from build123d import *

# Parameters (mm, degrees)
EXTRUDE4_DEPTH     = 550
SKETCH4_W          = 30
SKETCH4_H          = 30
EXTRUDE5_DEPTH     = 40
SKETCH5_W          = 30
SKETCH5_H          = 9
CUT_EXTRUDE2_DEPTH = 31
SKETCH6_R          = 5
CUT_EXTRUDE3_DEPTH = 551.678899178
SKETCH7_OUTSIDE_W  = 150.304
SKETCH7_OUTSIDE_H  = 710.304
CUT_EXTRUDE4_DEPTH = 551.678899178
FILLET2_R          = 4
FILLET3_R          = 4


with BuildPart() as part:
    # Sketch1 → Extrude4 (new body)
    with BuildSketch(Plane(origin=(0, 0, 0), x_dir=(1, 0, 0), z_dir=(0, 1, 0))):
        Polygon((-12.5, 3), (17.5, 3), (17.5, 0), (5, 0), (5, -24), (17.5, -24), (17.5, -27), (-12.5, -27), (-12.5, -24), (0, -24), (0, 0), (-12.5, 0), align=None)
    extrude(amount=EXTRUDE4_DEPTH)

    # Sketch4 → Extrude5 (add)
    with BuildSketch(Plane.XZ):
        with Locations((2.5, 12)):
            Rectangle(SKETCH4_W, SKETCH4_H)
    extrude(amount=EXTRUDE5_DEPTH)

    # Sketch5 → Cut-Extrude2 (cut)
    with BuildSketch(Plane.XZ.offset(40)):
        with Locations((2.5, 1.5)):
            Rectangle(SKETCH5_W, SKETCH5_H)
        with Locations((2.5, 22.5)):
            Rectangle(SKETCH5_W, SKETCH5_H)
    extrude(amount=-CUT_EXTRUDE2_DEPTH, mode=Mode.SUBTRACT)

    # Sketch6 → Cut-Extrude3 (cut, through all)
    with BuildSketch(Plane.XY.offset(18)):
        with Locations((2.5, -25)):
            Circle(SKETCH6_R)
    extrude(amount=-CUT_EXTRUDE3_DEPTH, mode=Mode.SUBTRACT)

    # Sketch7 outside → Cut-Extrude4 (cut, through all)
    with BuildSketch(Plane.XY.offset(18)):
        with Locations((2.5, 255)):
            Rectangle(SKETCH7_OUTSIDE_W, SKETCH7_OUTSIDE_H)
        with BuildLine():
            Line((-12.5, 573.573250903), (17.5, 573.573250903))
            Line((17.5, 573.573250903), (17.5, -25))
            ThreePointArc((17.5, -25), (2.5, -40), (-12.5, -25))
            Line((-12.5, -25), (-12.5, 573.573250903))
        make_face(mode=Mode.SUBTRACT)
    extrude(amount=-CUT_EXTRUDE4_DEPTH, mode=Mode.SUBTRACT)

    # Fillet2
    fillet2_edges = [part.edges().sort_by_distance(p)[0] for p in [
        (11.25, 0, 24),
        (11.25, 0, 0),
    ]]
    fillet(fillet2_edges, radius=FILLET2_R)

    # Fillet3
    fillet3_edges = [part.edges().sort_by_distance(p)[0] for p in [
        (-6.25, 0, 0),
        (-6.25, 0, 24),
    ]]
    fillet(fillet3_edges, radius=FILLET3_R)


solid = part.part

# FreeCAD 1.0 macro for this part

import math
import FreeCAD as App
import Part
import Sketcher

V = App.Vector


def edges_at(feature, points):
    """Names of the edges that pass closest to the given points."""
    edges = feature.Shape.Edges
    near = lambda p: min(range(len(edges)), key=lambda i: edges[i].distToShape(Part.Vertex(*p))[0])
    return sorted({f"Edge{near(p) + 1}" for p in points})


def add_polygon(sketch, points):
    """Adds a closed chain of lines whose ends are joined by coincident constraints."""
    first, n = sketch.GeometryCount, len(points)
    for a, b in zip(points, points[1:] + points[:1]):
        sketch.addGeometry(Part.LineSegment(App.Vector(*a, 0), App.Vector(*b, 0)), False)
    for i in range(n):
        sketch.addConstraint(Sketcher.Constraint("Coincident", first + i, 2, first + (i + 1) % n, 1))

doc = App.newDocument("Part")
body = doc.addObject("PartDesign::Body", "Body")

sketch1 = doc.addObject("Sketcher::SketchObject", "Sketch")
body.addObject(sketch1)
sketch1.AttachmentSupport = (doc.XZ_Plane, [""])
sketch1.MapMode = "FlatFace"
add_polygon(sketch1, [(17.5, -3), (-12.5, -3), (-12.5, 0), (0, 0), (0, 24), (-12.5, 24), (-12.5, 27), (17.5, 27), (17.5, 24), (5, 24), (5, 0), (17.5, 0)])
sketch1.addConstraint(Sketcher.Constraint("Horizontal", 0))
sketch1.addConstraint(Sketcher.Constraint("Vertical", 1))
sketch1.addConstraint(Sketcher.Constraint("Horizontal", 2))
sketch1.addConstraint(Sketcher.Constraint("Vertical", 3))
sketch1.addConstraint(Sketcher.Constraint("Horizontal", 4))
sketch1.addConstraint(Sketcher.Constraint("Vertical", 5))
sketch1.addConstraint(Sketcher.Constraint("Horizontal", 6))
sketch1.addConstraint(Sketcher.Constraint("Vertical", 7))
sketch1.addConstraint(Sketcher.Constraint("Horizontal", 8))
sketch1.addConstraint(Sketcher.Constraint("Vertical", 9))
sketch1.addConstraint(Sketcher.Constraint("Horizontal", 10))
sketch1.addConstraint(Sketcher.Constraint("Vertical", 11))
sketch1.addConstraint(Sketcher.Constraint("Coincident", 2, 2, -1, 1))
sketch1.addConstraint(Sketcher.Constraint("PointOnObject", 9, 2, -1))
sketch1.addConstraint(Sketcher.Constraint("Horizontal", 4, 2, 7, 2))
sketch1.addConstraint(Sketcher.Constraint("Vertical", 1, 2, 4, 2))
sketch1.addConstraint(Sketcher.Constraint("Vertical", 7, 2, 10, 2))
sketch1.addConstraint(Sketcher.Constraint("Equal", 4, 8))
sketch1.addConstraint(Sketcher.Constraint("Equal", 1, 5))
sketch1.addConstraint(Sketcher.Constraint("DistanceX", 0, 2, 0, 1, 30.0))
sketch1.addConstraint(Sketcher.Constraint("DistanceY", 1, 1, 1, 2, 3.0))
sketch1.addConstraint(Sketcher.Constraint("DistanceY", 3, 1, 3, 2, 24.0))
sketch1.addConstraint(Sketcher.Constraint("DistanceX", 2, 1, 2, 2, 12.5))
pad1 = doc.addObject("PartDesign::Pad", "Pad")
body.addObject(pad1)
pad1.Profile = sketch1
pad1.Length = 550
pad1.Reversed = True

sketch2 = doc.addObject("Sketcher::SketchObject", "Sketch001")
body.addObject(sketch2)
sketch2.AttachmentSupport = (doc.XZ_Plane, [""])
sketch2.MapMode = "FlatFace"
add_polygon(sketch2, [(-12, 27), (-12, -3), (18, -3), (18, 27)])
sketch2.addConstraint(Sketcher.Constraint("Vertical", 0))
sketch2.addConstraint(Sketcher.Constraint("Horizontal", 1))
sketch2.addConstraint(Sketcher.Constraint("Vertical", 2))
sketch2.addConstraint(Sketcher.Constraint("Horizontal", 3))
sketch2.addConstraint(Sketcher.Constraint("Equal", 3, 0))
sketch2.addConstraint(Sketcher.Constraint("DistanceX", 1, 1, 1, 2, 30.0))
sketch2.addConstraint(Sketcher.Constraint("DistanceY", 0, 2, -1, 1, 3.0))
sketch2.addConstraint(Sketcher.Constraint("DistanceX", 0, 2, -1, 1, 12.5))
pad2 = doc.addObject("PartDesign::Pad", "Pad001")
body.addObject(pad2)
pad2.Profile = sketch2
pad2.Length = 40

sketch3 = doc.addObject("Sketcher::SketchObject", "Sketch002")
body.addObject(sketch3)
sketch3.AttachmentSupport = (doc.XZ_Plane, [""])
sketch3.MapMode = "FlatFace"
sketch3.AttachmentOffset = App.Placement(V(0, 0, 40), App.Rotation())
add_polygon(sketch3, [(-12, 6), (-12, -3), (18, -3), (18, 6)])
add_polygon(sketch3, [(-12, 27), (-12, 18), (18, 18), (18, 27)])
sketch3.addConstraint(Sketcher.Constraint("Vertical", 0))
sketch3.addConstraint(Sketcher.Constraint("Horizontal", 1))
sketch3.addConstraint(Sketcher.Constraint("Vertical", 2))
sketch3.addConstraint(Sketcher.Constraint("Horizontal", 3))
sketch3.addConstraint(Sketcher.Constraint("Vertical", 4))
sketch3.addConstraint(Sketcher.Constraint("Horizontal", 5))
sketch3.addConstraint(Sketcher.Constraint("Vertical", 6))
sketch3.addConstraint(Sketcher.Constraint("Horizontal", 7))
sketch3.addConstraint(Sketcher.Constraint("Vertical", 3, 2, 4, 2))
sketch3.addConstraint(Sketcher.Constraint("Vertical", 2, 2, 5, 2))
sketch3.addConstraint(Sketcher.Constraint("Equal", 2, 4))
sketch3.addConstraint(Sketcher.Constraint("DistanceX", 1, 1, 1, 2, 30.0))
sketch3.addConstraint(Sketcher.Constraint("DistanceY", 0, 2, 0, 1, 9.0))
sketch3.addConstraint(Sketcher.Constraint("DistanceY", 0, 2, -1, 1, 3.0))
sketch3.addConstraint(Sketcher.Constraint("DistanceY", -1, 1, 4, 2, 18.0))
sketch3.addConstraint(Sketcher.Constraint("DistanceX", 0, 2, -1, 1, 12.5))
pocket1 = doc.addObject("PartDesign::Pocket", "Pocket")
body.addObject(pocket1)
pocket1.Profile = sketch3
pocket1.Length = 31

sketch4 = doc.addObject("Sketcher::SketchObject", "Sketch003")
body.addObject(sketch4)
sketch4.AttachmentSupport = (doc.XY_Plane, [""])
sketch4.MapMode = "FlatFace"
sketch4.AttachmentOffset = App.Placement(V(0, 0, 18), App.Rotation())
sketch4.addGeometry(Part.Circle(V(2, -25, 0), V(0, 0, 1), 5), False)
sketch4.addConstraint(Sketcher.Constraint("Diameter", 0, 10.0))
sketch4.addConstraint(Sketcher.Constraint("DistanceY", 0, 3, -1, 1, 25.0))
sketch4.addConstraint(Sketcher.Constraint("DistanceX", -1, 1, 0, 3, 2.5))
pocket2 = doc.addObject("PartDesign::Pocket", "Pocket001")
body.addObject(pocket2)
pocket2.Profile = sketch4
pocket2.Type = "ThroughAll"

sketch5 = doc.addObject("Sketcher::SketchObject", "Sketch004")
body.addObject(sketch5)
sketch5.AttachmentSupport = (doc.XY_Plane, [""])
sketch5.MapMode = "FlatFace"
sketch5.AttachmentOffset = App.Placement(V(0, 0, 18), App.Rotation())
add_polygon(sketch5, [(-73, 610), (-73, -100), (78, -100), (78, 610)])
sketch5.addGeometry(Part.LineSegment(V(-12, -25, 0), V(-12, 574, 0)), False)
sketch5.addGeometry(Part.LineSegment(V(-12, 574, 0), V(18, 574, 0)), False)
sketch5.addGeometry(Part.LineSegment(V(18, 574, 0), V(18, -25, 0)), False)
sketch5.addGeometry(Part.ArcOfCircle(Part.Circle(V(2, -25, 0), V(0, 0, 1), 15), math.radians(180), math.radians(360)), False)
sketch5.addConstraint(Sketcher.Constraint("Coincident", 4, 2, 5, 1))
sketch5.addConstraint(Sketcher.Constraint("Coincident", 5, 2, 6, 1))
sketch5.addConstraint(Sketcher.Constraint("Tangent", 6, 2, 7, 2))
sketch5.addConstraint(Sketcher.Constraint("Tangent", 7, 1, 4, 1))
sketch5.addConstraint(Sketcher.Constraint("Vertical", 0))
sketch5.addConstraint(Sketcher.Constraint("Horizontal", 1))
sketch5.addConstraint(Sketcher.Constraint("Vertical", 2))
sketch5.addConstraint(Sketcher.Constraint("Horizontal", 3))
sketch5.addConstraint(Sketcher.Constraint("Vertical", 4))
sketch5.addConstraint(Sketcher.Constraint("Horizontal", 5))
sketch5.addConstraint(Sketcher.Constraint("Vertical", 6))
sketch5.addConstraint(Sketcher.Constraint("Radius", 7, 15.0))
sketch5.addConstraint(Sketcher.Constraint("DistanceY", 7, 3, -1, 1, 25.0))
sketch5.addConstraint(Sketcher.Constraint("DistanceX", -1, 1, 7, 3, 2.5))
sketch5.addConstraint(Sketcher.Constraint("DistanceX", 1, 1, 1, 2, 150.304))
sketch5.addConstraint(Sketcher.Constraint("DistanceY", 0, 2, 0, 1, 710.304))
sketch5.addConstraint(Sketcher.Constraint("DistanceX", 0, 2, -1, 1, 72.652))
sketch5.addConstraint(Sketcher.Constraint("DistanceY", 0, 2, -1, 1, 100.152))
sketch5.addConstraint(Sketcher.Constraint("DistanceY", 4, 1, 4, 2, 598.573251))
pocket3 = doc.addObject("PartDesign::Pocket", "Pocket002")
body.addObject(pocket3)
pocket3.Profile = sketch5
pocket3.Type = "ThroughAll"
doc.recompute()

fillet = doc.addObject("PartDesign::Fillet", "Fillet")
body.addObject(fillet)
fillet.Base = (pocket3, edges_at(pocket3, [(11.25, 0, 24), (11.25, 0, 0)]))
fillet.Radius = 4
doc.recompute()

fillet2 = doc.addObject("PartDesign::Fillet", "Fillet001")
body.addObject(fillet2)
fillet2.Base = (fillet, edges_at(fillet, [(-6.25, 0, 0), (-6.25, 0, 24)]))
fillet2.Radius = 4

doc.recompute()
